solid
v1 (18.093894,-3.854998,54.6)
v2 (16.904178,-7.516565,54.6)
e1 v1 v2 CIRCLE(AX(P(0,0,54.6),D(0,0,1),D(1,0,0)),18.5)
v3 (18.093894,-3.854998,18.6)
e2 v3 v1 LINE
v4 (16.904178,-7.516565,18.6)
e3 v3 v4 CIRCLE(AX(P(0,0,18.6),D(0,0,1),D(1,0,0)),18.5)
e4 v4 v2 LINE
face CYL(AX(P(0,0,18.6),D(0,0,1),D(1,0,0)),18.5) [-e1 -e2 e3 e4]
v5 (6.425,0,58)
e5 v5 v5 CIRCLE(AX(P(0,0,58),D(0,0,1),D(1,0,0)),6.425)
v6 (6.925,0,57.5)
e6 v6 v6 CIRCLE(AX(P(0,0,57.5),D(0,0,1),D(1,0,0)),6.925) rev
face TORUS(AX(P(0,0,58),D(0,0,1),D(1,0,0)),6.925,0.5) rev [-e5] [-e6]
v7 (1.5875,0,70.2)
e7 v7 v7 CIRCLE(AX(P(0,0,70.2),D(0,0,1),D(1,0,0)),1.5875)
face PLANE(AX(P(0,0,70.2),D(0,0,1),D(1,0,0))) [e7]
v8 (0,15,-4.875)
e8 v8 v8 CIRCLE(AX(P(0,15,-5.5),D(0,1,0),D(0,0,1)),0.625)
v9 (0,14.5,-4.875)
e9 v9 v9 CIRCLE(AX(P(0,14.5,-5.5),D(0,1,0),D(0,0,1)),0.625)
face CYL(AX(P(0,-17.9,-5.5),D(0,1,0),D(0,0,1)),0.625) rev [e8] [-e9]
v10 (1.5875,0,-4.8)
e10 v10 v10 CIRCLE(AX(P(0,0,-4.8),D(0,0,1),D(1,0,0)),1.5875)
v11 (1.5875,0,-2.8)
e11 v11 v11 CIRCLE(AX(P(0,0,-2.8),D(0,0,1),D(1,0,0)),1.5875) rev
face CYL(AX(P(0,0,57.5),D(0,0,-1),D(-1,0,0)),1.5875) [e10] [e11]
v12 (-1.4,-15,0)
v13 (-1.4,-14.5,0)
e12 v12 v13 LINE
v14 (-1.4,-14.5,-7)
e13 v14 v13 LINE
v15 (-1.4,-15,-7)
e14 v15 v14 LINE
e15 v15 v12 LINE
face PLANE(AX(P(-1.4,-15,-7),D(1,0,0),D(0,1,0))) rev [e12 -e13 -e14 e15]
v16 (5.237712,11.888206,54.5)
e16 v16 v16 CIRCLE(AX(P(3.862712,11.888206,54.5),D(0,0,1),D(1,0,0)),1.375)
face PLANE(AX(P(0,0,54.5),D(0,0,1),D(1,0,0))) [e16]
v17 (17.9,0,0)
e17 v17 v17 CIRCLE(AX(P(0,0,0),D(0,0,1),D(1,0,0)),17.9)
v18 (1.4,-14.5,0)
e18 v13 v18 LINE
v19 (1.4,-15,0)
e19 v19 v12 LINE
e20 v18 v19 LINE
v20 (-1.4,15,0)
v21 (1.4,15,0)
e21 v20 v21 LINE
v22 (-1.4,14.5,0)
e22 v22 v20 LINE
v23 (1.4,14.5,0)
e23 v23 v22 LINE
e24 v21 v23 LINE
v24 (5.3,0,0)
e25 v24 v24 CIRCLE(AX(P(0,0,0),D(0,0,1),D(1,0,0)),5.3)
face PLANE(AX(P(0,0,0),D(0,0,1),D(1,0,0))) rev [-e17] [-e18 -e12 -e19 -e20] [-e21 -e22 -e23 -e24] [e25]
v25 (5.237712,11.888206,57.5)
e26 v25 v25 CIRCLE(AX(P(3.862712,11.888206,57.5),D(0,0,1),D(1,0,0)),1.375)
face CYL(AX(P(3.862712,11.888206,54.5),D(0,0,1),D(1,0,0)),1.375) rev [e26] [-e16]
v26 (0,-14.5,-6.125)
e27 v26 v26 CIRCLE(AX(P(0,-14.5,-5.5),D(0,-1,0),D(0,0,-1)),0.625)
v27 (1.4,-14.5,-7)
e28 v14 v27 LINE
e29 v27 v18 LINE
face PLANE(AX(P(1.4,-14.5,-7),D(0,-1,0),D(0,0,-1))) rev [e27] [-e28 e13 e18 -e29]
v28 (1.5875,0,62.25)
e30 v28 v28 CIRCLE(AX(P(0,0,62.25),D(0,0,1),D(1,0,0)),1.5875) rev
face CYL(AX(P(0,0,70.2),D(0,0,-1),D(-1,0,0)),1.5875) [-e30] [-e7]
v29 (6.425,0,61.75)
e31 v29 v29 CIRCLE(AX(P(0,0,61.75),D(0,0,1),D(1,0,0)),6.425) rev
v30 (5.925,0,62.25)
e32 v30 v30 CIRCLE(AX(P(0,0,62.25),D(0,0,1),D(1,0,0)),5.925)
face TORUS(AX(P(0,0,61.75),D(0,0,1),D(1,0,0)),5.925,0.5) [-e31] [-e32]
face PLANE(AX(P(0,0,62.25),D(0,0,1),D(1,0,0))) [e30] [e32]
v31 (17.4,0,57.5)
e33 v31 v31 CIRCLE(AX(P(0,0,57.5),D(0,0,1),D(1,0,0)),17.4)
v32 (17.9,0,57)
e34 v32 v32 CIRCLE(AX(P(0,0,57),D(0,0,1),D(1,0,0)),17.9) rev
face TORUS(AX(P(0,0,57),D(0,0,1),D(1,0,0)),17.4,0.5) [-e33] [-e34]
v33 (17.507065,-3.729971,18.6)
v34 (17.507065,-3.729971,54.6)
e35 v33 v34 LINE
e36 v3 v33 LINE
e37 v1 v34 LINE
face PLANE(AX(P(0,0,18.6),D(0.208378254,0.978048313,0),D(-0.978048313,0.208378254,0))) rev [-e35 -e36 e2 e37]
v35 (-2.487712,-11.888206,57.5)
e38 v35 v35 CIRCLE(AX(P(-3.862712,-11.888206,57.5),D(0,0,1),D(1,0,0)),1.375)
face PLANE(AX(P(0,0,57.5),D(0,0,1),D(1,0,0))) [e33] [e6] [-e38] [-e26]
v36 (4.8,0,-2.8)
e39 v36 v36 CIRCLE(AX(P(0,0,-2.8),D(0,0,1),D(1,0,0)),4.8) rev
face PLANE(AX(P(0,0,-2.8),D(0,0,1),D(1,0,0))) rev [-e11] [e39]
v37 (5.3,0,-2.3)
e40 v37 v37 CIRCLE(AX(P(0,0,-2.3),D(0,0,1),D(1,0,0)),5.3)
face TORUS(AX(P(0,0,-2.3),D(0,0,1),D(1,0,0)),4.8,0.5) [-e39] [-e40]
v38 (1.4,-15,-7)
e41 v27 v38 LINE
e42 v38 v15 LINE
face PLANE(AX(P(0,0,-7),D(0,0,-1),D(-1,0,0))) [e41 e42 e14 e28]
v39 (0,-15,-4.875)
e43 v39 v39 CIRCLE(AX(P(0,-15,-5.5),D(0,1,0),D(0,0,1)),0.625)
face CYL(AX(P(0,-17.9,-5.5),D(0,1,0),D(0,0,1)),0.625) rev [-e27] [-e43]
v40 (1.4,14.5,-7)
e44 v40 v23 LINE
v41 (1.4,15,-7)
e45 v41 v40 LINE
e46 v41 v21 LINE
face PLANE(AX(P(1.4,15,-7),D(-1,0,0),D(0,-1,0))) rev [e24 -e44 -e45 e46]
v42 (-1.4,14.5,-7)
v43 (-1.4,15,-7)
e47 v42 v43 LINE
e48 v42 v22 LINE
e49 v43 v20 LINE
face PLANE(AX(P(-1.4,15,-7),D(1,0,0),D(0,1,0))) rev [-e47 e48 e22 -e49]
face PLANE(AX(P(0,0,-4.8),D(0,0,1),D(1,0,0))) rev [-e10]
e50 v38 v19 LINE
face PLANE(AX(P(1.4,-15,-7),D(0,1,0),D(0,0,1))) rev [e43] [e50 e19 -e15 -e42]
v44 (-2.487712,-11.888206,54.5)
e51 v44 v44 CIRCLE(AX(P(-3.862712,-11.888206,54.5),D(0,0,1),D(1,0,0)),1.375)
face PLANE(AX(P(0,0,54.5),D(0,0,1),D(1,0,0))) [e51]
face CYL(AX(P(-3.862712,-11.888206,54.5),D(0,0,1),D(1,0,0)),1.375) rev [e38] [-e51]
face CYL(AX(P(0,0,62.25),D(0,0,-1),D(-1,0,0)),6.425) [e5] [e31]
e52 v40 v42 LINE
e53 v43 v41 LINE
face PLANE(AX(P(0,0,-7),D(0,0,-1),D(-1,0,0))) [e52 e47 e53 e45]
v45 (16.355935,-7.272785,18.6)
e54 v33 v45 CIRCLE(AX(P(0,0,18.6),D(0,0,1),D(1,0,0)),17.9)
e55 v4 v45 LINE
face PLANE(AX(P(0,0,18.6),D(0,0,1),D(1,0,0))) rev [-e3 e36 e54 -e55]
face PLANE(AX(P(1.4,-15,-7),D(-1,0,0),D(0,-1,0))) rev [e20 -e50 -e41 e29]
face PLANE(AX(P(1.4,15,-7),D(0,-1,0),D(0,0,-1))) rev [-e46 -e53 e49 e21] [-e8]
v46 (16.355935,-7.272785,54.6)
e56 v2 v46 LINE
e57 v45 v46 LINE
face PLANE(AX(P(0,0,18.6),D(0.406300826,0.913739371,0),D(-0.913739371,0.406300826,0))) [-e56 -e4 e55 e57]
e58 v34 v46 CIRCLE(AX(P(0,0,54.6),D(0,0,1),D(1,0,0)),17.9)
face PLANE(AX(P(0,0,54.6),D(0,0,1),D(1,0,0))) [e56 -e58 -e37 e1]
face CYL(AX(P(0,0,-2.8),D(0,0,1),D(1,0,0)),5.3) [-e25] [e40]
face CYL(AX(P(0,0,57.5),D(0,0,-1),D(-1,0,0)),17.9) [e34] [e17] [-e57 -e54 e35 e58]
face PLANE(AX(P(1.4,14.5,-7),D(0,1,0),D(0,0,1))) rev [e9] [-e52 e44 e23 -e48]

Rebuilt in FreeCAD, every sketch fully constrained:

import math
import FreeCAD as App
import Part
import Sketcher


def edges_at(feature, points):
    """Names of the edges that pass closest to the given points."""
    edges = feature.Shape.Edges
    near = lambda p: min(range(len(edges)), key=lambda i: edges[i].distToShape(Part.Vertex(*p))[0])
    return sorted({f"Edge{near(p) + 1}" for p in points})


def add_polygon(sketch, points):
    """Adds a closed chain of lines whose ends are joined by coincident constraints."""
    first, n = sketch.GeometryCount, len(points)
    for a, b in zip(points, points[1:] + points[:1]):
        sketch.addGeometry(Part.LineSegment(App.Vector(*a, 0), App.Vector(*b, 0)), False)
    for i in range(n):
        sketch.addConstraint(Sketcher.Constraint("Coincident", first + i, 2, first + (i + 1) % n, 1))

doc = App.newDocument("Part")
params = doc.addObject("Spreadsheet::Sheet", "Params")
for row, (alias, value) in enumerate([
    ("sketch1_diameter", "35.8 mm"),
    ("pad1_length", "57.5 mm"),
    ("sketch2_diameter", "10.6 mm"),
    ("pad2_length", "2.8 mm"),
    ("pad3_length", "57.5 mm"),
    ("pad3_length2", "2 mm"),
    ("pad4_length", "75 mm"),
    ("sketch5_diameter", "2.75 mm"),
    ("pocket1_length", "3 mm"),
    ("sketch6_width", "2.8 mm"),
    ("sketch6_height", "0.5 mm"),
    ("pad5_length", "7 mm"),
    ("sketch7_diameter", "1.25 mm"),
    ("sketch8_diameter", "12.85 mm"),
    ("pad6_length", "4.75 mm"),
    ("sketch9_radius", "18.5 mm"),
    ("sketch9_radius2", "17.9 mm"),
    ("pad7_length", "36 mm"),
    ("fillet_radius", "0.5 mm"),
], start=1):
    params.set(f"A{row}", alias)
    params.set(f"B{row}", "=" + value)
    params.setAlias(f"B{row}", alias)

body = doc.addObject("PartDesign::Body", "Body")

sketch1 = body.newObject("Sketcher::SketchObject", "Sketch")
sketch1.AttachmentSupport = (doc.getObject("XY_Plane"), [""])
sketch1.MapMode = "FlatFace"
sketch1.addGeometry(Part.Circle(App.Vector(0, 0, 0), App.Vector(0, 0, 1), 17.9), False)
sketch1.addConstraint([
    Sketcher.Constraint("Coincident", 0, 3, -1, 1),
    Sketcher.Constraint("Diameter", 0, 35.8),
])
sketch1.setExpression("Constraints[1]", "Params.sketch1_diameter")
pad1 = body.newObject("PartDesign::Pad", "Pad")
pad1.Profile = sketch1
pad1.setExpression("Length", "Params.pad1_length")

sketch2 = body.newObject("Sketcher::SketchObject", "Sketch001")
sketch2.AttachmentSupport = (doc.getObject("XY_Plane"), [""])
sketch2.MapMode = "FlatFace"
sketch2.addGeometry([
    Part.Circle(App.Vector(0, 0, 0), App.Vector(0, 0, 1), 5.3),
    Part.Circle(App.Vector(0, 0, 0), App.Vector(0, 0, 1), 1.5875),
], False)
sketch2.addConstraint([
    Sketcher.Constraint("Coincident", 0, 3, -1, 1),
    Sketcher.Constraint("Coincident", 1, 3, -1, 1),
    Sketcher.Constraint("Diameter", 0, 10.6),
    Sketcher.Constraint("Diameter", 1, 3.175),
])
sketch2.setExpression("Constraints[2]", "Params.sketch2_diameter")
pad2 = body.newObject("PartDesign::Pad", "Pad001")
pad2.Profile = sketch2
pad2.setExpression("Length", "Params.pad2_length")
pad2.Reversed = True

sketch3 = body.newObject("Sketcher::SketchObject", "Sketch002")
sketch3.AttachmentSupport = (doc.getObject("XY_Plane"), [""])
sketch3.MapMode = "FlatFace"
sketch3.AttachmentOffset = App.Placement(App.Vector(0, 0, -2.8), App.Rotation())
sketch3.addGeometry(Part.Circle(App.Vector(0, 0, 0), App.Vector(0, 0, 1), 1.5875), False)
sketch3.addConstraint([
    Sketcher.Constraint("Coincident", 0, 3, -1, 1),
    Sketcher.Constraint("Diameter", 0, 3.175),
])
pad3 = body.newObject("PartDesign::Pad", "Pad002")
pad3.Profile = sketch3
pad3.Type = "TwoLengths"
pad3.setExpression("Length", "Params.pad3_length")
pad3.setExpression("Length2", "Params.pad3_length2")

sketch4 = body.newObject("Sketcher::SketchObject", "Sketch003")
sketch4.AttachmentSupport = (doc.getObject("XY_Plane"), [""])
sketch4.MapMode = "FlatFace"
sketch4.AttachmentOffset = App.Placement(App.Vector(0, 0, 70.2), App.Rotation())
sketch4.addGeometry(Part.Circle(App.Vector(0, 0, 0), App.Vector(0, 0, 1), 1.5875), False)
sketch4.addConstraint([
    Sketcher.Constraint("Coincident", 0, 3, -1, 1),
    Sketcher.Constraint("Diameter", 0, 3.175),
])
pad4 = body.newObject("PartDesign::Pad", "Pad003")
pad4.Profile = sketch4
pad4.setExpression("Length", "Params.pad4_length")
pad4.Reversed = True

sketch5 = body.newObject("Sketcher::SketchObject", "Sketch004")
sketch5.AttachmentSupport = (doc.getObject("XY_Plane"), [""])
sketch5.MapMode = "FlatFace"
sketch5.AttachmentOffset = App.Placement(App.Vector(0, 0, 57.5), App.Rotation())
sketch5.addGeometry([
    Part.Circle(App.Vector(3.862712, 11.888206, 0), App.Vector(0, 0, 1), 1.375),
    Part.Circle(App.Vector(-3.862712, -11.888206, 0), App.Vector(0, 0, 1), 1.375),
], False)
sketch5.addConstraint([
    Sketcher.Constraint("Equal", 0, 1),
    Sketcher.Constraint("Symmetric", 0, 3, 1, 3, -1, 1),
    Sketcher.Constraint("Diameter", 0, 2.75),
    Sketcher.Constraint("DistanceX", -1, 1, 0, 3, 3.862712),
    Sketcher.Constraint("DistanceY", -1, 1, 0, 3, 11.888206),
])
sketch5.setExpression("Constraints[2]", "Params.sketch5_diameter")
pocket1 = body.newObject("PartDesign::Pocket", "Pocket")
pocket1.Profile = sketch5
pocket1.setExpression("Length", "Params.pocket1_length")

sketch6 = body.newObject("Sketcher::SketchObject", "Sketch005")
sketch6.AttachmentSupport = (doc.getObject("XY_Plane"), [""])
sketch6.MapMode = "FlatFace"
add_polygon(sketch6, [(1.4, -14.5), (1.4, -15), (-1.4, -15), (-1.4, -14.5)])
add_polygon(sketch6, [(1.4, 15), (1.4, 14.5), (-1.4, 14.5), (-1.4, 15)])
sketch6.addConstraint([
    Sketcher.Constraint("Vertical", 0),
    Sketcher.Constraint("Horizontal", 1),
    Sketcher.Constraint("Vertical", 2),
    Sketcher.Constraint("Horizontal", 3),
    Sketcher.Constraint("Vertical", 4),
    Sketcher.Constraint("Horizontal", 5),
    Sketcher.Constraint("Vertical", 6),
    Sketcher.Constraint("Horizontal", 7),
    Sketcher.Constraint("Symmetric", 2, 2, 4, 2, -1, 1),
    Sketcher.Constraint("Symmetric", 0, 2, 6, 2, -1, 1),
    Sketcher.Constraint("Vertical", 3, 2, 4, 2),
    Sketcher.Constraint("DistanceX", 1, 2, 1, 1, 2.8),
    Sketcher.Constraint("DistanceY", 0, 2, 0, 1, 0.5),
    Sketcher.Constraint("DistanceY", 0, 2, -1, 1, 15.0),
])
sketch6.setExpression("Constraints[19]", "Params.sketch6_width")
sketch6.setExpression("Constraints[20]", "Params.sketch6_height")
pad5 = body.newObject("PartDesign::Pad", "Pad004")
pad5.Profile = sketch6
pad5.setExpression("Length", "Params.pad5_length")
pad5.Reversed = True

sketch7 = body.newObject("Sketcher::SketchObject", "Sketch006")
sketch7.AttachmentSupport = (doc.getObject("XZ_Plane"), [""])
sketch7.MapMode = "FlatFace"
sketch7.AttachmentOffset = App.Placement(App.Vector(0, 0, -15), App.Rotation())
sketch7.addGeometry(Part.Circle(App.Vector(0, -5.5, 0), App.Vector(0, 0, 1), 0.625), False)
sketch7.addConstraint([
    Sketcher.Constraint("PointOnObject", 0, 3, -2),
    Sketcher.Constraint("Diameter", 0, 1.25),
    Sketcher.Constraint("DistanceY", 0, 3, -1, 1, 5.5),
])
sketch7.setExpression("Constraints[1]", "Params.sketch7_diameter")
pocket2 = body.newObject("PartDesign::Pocket", "Pocket001")
pocket2.Profile = sketch7
pocket2.Type = "ThroughAll"
pocket2.Reversed = True

sketch8 = body.newObject("Sketcher::SketchObject", "Sketch007")
sketch8.AttachmentSupport = (doc.getObject("XY_Plane"), [""])
sketch8.MapMode = "FlatFace"
sketch8.AttachmentOffset = App.Placement(App.Vector(0, 0, 57.5), App.Rotation())
sketch8.addGeometry(Part.Circle(App.Vector(0, 0, 0), App.Vector(0, 0, 1), 6.425), False)
sketch8.addConstraint([
    Sketcher.Constraint("Coincident", 0, 3, -1, 1),
    Sketcher.Constraint("Diameter", 0, 12.85),
])
sketch8.setExpression("Constraints[1]", "Params.sketch8_diameter")
pad6 = body.newObject("PartDesign::Pad", "Pad005")
pad6.Profile = sketch8
pad6.setExpression("Length", "Params.pad6_length")

sketch9 = body.newObject("Sketcher::SketchObject", "Sketch008")
sketch9.AttachmentSupport = (doc.getObject("XY_Plane"), [""])
sketch9.MapMode = "FlatFace"
sketch9.AttachmentOffset = App.Placement(App.Vector(0, 0, 18.6), App.Rotation())
sketch9.addGeometry([
    Part.LineSegment(App.Vector(17.507065, -3.729971, 0), App.Vector(18.093894, -3.854998, 0)),
    Part.ArcOfCircle(Part.Circle(App.Vector(0, 0, 0), App.Vector(0, 0, 1), 18.5), math.radians(-12.027331), math.radians(336.027331)),
    Part.LineSegment(App.Vector(16.904178, -7.516565, 0), App.Vector(16.355935, -7.272785, 0)),
    Part.ArcOfCircle(Part.Circle(App.Vector(0, 0, 0), App.Vector(0, 0, 1), 17.9), math.radians(0), math.radians(336.027331)),
    Part.ArcOfCircle(Part.Circle(App.Vector(0, 0, 0), App.Vector(0, 0, 1), 17.9), math.radians(-12.027331), math.radians(0)),
], False)
sketch9.addConstraint([
    Sketcher.Constraint("Coincident", 0, 2, 1, 1),
    Sketcher.Constraint("Coincident", 1, 2, 2, 1),
    Sketcher.Constraint("Coincident", 2, 2, 3, 2),
    Sketcher.Constraint("Tangent", 3, 1, 4, 2),
    Sketcher.Constraint("Coincident", 4, 1, 0, 1),
    Sketcher.Constraint("Coincident", 1, 3, -1, 1),
    Sketcher.Constraint("Coincident", 3, 3, -1, 1),
    Sketcher.Constraint("Equal", 3, 4),
    Sketcher.Constraint("PointOnObject", 3, 1, -1),
    Sketcher.Constraint("Radius", 1, 18.5),
    Sketcher.Constraint("Radius", 3, 17.9),
    Sketcher.Constraint("DistanceX", -1, 1, 1, 2, 16.904178),
    Sketcher.Constraint("DistanceY", 4, 1, -1, 1, 3.729971),
    Sketcher.Constraint("DistanceY", 1, 2, 2, 2, 0.24378),
    Sketcher.Constraint("DistanceX", 2, 2, 0, 2, 1.737959),
])
sketch9.setExpression("Constraints[9]", "Params.sketch9_radius")
sketch9.setExpression("Constraints[10]", "Params.sketch9_radius2")
pad7 = body.newObject("PartDesign::Pad", "Pad006")
pad7.Profile = sketch9
pad7.setExpression("Length", "Params.pad7_length")
doc.recompute()

fillet = body.newObject("PartDesign::Fillet", "Fillet")
fillet.Base = (pad7, edges_at(pad7, [
    (-17.9, 0, 57.5),
    (-5.3, 0, -2.8),
    (-6.425, 0, 57.5),
    (-6.425, 0, 62.25),
]))
fillet.setExpression("Radius", "Params.fillet_radius")

doc.recompute()
